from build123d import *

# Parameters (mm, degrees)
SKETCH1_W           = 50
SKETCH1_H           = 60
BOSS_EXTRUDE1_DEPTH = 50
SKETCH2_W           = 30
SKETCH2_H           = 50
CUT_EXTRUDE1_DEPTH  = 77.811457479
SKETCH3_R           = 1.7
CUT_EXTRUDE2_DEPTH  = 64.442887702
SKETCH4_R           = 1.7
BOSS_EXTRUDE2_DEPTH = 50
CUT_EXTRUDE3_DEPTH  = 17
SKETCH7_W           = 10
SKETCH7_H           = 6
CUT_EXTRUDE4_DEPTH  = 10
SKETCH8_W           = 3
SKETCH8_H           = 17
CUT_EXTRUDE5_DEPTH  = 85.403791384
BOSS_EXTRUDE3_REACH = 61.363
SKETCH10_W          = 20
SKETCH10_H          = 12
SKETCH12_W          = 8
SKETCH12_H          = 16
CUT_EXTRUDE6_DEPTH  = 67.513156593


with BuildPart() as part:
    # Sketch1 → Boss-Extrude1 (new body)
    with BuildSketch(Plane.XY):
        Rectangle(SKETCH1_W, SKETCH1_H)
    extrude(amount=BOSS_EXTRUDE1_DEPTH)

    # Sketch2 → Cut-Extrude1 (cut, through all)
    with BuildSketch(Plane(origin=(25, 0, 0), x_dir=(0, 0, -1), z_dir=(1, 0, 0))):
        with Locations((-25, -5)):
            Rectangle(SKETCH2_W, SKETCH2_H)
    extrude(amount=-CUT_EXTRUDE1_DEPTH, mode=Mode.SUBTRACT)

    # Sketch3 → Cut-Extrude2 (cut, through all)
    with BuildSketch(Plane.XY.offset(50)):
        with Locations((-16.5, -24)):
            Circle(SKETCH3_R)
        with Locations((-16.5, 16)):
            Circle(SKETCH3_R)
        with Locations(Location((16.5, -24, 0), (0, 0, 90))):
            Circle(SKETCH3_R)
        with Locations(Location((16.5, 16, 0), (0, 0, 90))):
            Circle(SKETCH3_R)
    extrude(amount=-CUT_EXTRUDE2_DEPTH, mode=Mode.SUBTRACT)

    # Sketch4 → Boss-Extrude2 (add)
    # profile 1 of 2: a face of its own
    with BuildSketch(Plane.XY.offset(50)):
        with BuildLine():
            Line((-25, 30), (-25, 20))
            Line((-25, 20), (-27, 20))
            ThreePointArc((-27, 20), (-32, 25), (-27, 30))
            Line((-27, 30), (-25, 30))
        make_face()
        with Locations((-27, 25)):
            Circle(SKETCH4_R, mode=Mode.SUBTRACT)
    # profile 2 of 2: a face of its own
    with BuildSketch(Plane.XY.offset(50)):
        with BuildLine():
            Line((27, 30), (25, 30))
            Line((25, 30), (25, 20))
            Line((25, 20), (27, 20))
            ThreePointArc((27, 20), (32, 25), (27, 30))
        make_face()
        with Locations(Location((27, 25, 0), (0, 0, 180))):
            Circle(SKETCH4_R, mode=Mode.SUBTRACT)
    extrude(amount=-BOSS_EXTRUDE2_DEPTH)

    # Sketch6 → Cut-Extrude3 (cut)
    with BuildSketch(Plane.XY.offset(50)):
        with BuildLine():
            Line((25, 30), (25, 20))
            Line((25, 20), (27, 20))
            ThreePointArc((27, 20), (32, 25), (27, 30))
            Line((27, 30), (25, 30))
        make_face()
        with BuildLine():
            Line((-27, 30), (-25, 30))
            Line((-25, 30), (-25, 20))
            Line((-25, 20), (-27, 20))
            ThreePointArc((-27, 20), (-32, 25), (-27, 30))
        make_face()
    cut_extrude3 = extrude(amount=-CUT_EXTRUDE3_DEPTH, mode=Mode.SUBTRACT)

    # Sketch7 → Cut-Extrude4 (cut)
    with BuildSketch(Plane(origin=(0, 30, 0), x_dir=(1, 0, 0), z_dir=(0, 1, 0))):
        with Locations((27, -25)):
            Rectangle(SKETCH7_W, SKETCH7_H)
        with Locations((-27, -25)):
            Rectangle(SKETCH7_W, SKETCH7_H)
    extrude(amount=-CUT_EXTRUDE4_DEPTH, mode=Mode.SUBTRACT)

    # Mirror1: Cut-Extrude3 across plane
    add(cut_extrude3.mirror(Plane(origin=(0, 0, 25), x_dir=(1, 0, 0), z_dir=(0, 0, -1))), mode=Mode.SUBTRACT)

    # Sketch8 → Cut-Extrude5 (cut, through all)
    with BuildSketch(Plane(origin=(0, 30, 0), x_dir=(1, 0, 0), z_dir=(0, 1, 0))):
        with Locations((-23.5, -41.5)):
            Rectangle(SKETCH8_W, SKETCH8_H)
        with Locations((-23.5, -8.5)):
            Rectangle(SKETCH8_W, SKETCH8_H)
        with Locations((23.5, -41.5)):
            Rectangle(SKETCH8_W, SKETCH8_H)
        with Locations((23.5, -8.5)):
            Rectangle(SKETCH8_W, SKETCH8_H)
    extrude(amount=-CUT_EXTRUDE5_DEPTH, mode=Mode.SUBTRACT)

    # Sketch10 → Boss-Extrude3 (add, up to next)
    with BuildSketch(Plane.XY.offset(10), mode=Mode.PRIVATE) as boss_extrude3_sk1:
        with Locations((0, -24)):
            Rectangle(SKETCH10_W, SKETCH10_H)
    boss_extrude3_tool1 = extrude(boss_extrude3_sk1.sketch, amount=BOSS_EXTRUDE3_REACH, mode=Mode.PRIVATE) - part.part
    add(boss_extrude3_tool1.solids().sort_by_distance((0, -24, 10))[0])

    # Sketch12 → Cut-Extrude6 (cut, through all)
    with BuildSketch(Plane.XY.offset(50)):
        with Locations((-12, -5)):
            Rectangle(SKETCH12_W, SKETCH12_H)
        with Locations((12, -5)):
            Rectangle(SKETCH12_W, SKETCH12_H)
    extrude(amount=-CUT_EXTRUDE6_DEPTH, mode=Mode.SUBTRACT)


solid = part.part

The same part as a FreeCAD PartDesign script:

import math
import FreeCAD as App
import Part
import Sketcher

V = App.Vector
Q = App.Units.Quantity


def add_polygon(sketch, points):
    """Adds a closed chain of lines whose ends are joined by coincident constraints."""
    first, n = sketch.GeometryCount, len(points)
    for a, b in zip(points, points[1:] + points[:1]):
        sketch.addGeometry(Part.LineSegment(App.Vector(*a, 0), App.Vector(*b, 0)), False)
    for i in range(n):
        sketch.addConstraint(Sketcher.Constraint("Coincident", first + i, 2, first + (i + 1) % n, 1))

doc = App.newDocument("Part")
body = doc.addObject("PartDesign::Body", "Body")

# Sketch on XY plane
sketch1 = body.newObject("Sketcher::SketchObject", "Sketch")
sketch1.AttachmentSupport = (doc.getObject("XY_Plane"), [""])
sketch1.MapMode = "FlatFace"
add_polygon(sketch1, [(-25, 30), (-25, -30), (25, -30), (25, 30)])  # lines 0-3
sketch1.addConstraint([
    Sketcher.Constraint("Vertical", 0),
    Sketcher.Constraint("Horizontal", 1),
    Sketcher.Constraint("Vertical", 2),
    Sketcher.Constraint("Horizontal", 3),
    Sketcher.Constraint("Symmetric", 0, 2, 2, 2, -1, 1),
    Sketcher.Constraint("DistanceX", 1, 1, 1, 2, Q("50 mm")),
    Sketcher.Constraint("DistanceY", 0, 2, 0, 1, Q("60 mm")),
])
pad1 = body.newObject("PartDesign::Pad", "Pad")
pad1.Profile = sketch1
pad1.Length = 50

# Sketch on YZ plane
sketch2 = body.newObject("Sketcher::SketchObject", "Sketch001")
sketch2.AttachmentSupport = (doc.getObject("YZ_Plane"), [""])
sketch2.MapMode = "FlatFace"
sketch2.AttachmentOffset = App.Placement(V(0, 0, 25), App.Rotation())
add_polygon(sketch2, [(20, 40), (-30, 40), (-30, 10), (20, 10)])  # lines 0-3
sketch2.addConstraint([
    Sketcher.Constraint("Horizontal", 0),
    Sketcher.Constraint("Vertical", 1),
    Sketcher.Constraint("Horizontal", 2),
    Sketcher.Constraint("Vertical", 3),
    Sketcher.Constraint("DistanceX", 0, 2, 0, 1, Q("50 mm")),
    Sketcher.Constraint("DistanceY", 1, 2, 1, 1, Q("30 mm")),
    Sketcher.Constraint("DistanceX", 0, 2, -1, 1, Q("30 mm")),
    Sketcher.Constraint("DistanceY", -1, 1, 0, 2, Q("40 mm")),
])
pocket1 = body.newObject("PartDesign::Pocket", "Pocket")
pocket1.Profile = sketch2
pocket1.Type = "ThroughAll"

# Sketch on XY plane
sketch3 = body.newObject("Sketcher::SketchObject", "Sketch002")
sketch3.AttachmentSupport = (doc.getObject("XY_Plane"), [""])
sketch3.MapMode = "FlatFace"
sketch3.AttachmentOffset = App.Placement(V(0, 0, 50), App.Rotation())
sketch3.addGeometry([
    Part.Circle(V(-16.5, -24, 0), V(0, 0, 1), 1.7),
    Part.Circle(V(-16.5, 16, 0), V(0, 0, 1), 1.7),
    Part.Circle(V(16.5, -24, 0), V(0, 0, 1), 1.7),
    Part.Circle(V(16.5, 16, 0), V(0, 0, 1), 1.7),
], False)
sketch3.addConstraint([
    Sketcher.Constraint("Equal", 0, 1),
    Sketcher.Constraint("Equal", 1, 2),
    Sketcher.Constraint("Equal", 2, 3),
    Sketcher.Constraint("Symmetric", 0, 3, 2, 3, -2),
    Sketcher.Constraint("Symmetric", 1, 3, 3, 3, -2),
    Sketcher.Constraint("Vertical", 0, 3, 1, 3),
    Sketcher.Constraint("Diameter", 0, Q("3.4 mm")),
    Sketcher.Constraint("DistanceY", 0, 3, -1, 1, Q("24 mm")),
    Sketcher.Constraint("DistanceY", -1, 1, 1, 3, Q("16 mm")),
    Sketcher.Constraint("DistanceX", 0, 3, 2, 3, Q("33 mm")),
])
pocket2 = body.newObject("PartDesign::Pocket", "Pocket001")
pocket2.Profile = sketch3
pocket2.Type = "ThroughAll"

# Sketch on XY plane
sketch4 = body.newObject("Sketcher::SketchObject", "Sketch003")
sketch4.AttachmentSupport = (doc.getObject("XY_Plane"), [""])
sketch4.MapMode = "FlatFace"
sketch4.AttachmentOffset = App.Placement(V(0, 0, 50), App.Rotation())
sketch4.addGeometry([
    Part.LineSegment(V(-25, 20, 0), V(-25, 30, 0)),  # 0
    Part.LineSegment(V(-25, 30, 0), V(-27, 30, 0)),  # 1
    Part.ArcOfCircle(Part.Circle(V(-27, 25, 0), V(0, 0, 1), 5), math.radians(90), math.radians(270)),  # 2
    Part.LineSegment(V(-27, 20, 0), V(-25, 20, 0)),  # 3
    Part.Circle(V(-27, 25, 0), V(0, 0, 1), 1.7),  # 4
    Part.LineSegment(V(27, 30, 0), V(25, 30, 0)),  # 5
    Part.LineSegment(V(25, 30, 0), V(25, 20, 0)),  # 6
    Part.LineSegment(V(25, 20, 0), V(27, 20, 0)),  # 7
    Part.ArcOfCircle(Part.Circle(V(27, 25, 0), V(0, 0, 1), 5), math.radians(-90), math.radians(90)),  # 8
    Part.Circle(V(27, 25, 0), V(0, 0, 1), 1.7),  # 9
], False)
sketch4.addConstraint([
    Sketcher.Constraint("Coincident", 0, 2, 1, 1),
    Sketcher.Constraint("Tangent", 1, 2, 2, 1),
    Sketcher.Constraint("Tangent", 2, 2, 3, 1),
    Sketcher.Constraint("Coincident", 3, 2, 0, 1),
    Sketcher.Constraint("Coincident", 5, 2, 6, 1),
    Sketcher.Constraint("Coincident", 6, 2, 7, 1),
    Sketcher.Constraint("Tangent", 7, 2, 8, 1),
    Sketcher.Constraint("Tangent", 8, 2, 5, 1),
    Sketcher.Constraint("Vertical", 0),
    Sketcher.Constraint("Horizontal", 1),
    Sketcher.Constraint("Horizontal", 3),
    Sketcher.Constraint("Horizontal", 5),
    Sketcher.Constraint("Vertical", 6),
    Sketcher.Constraint("Horizontal", 7),
    Sketcher.Constraint("Coincident", 4, 3, 2, 3),
    Sketcher.Constraint("Coincident", 9, 3, 8, 3),
    Sketcher.Constraint("Equal", 2, 8),
    Sketcher.Constraint("Equal", 4, 9),
    Sketcher.Constraint("Symmetric", 2, 3, 8, 3, -2),
    Sketcher.Constraint("Equal", 3, 5),
    Sketcher.Constraint("Radius", 2, Q("5 mm")),
    Sketcher.Constraint("Diameter", 4, Q("3.4 mm")),
    Sketcher.Constraint("DistanceX", 1, 2, 1, 1, Q("2 mm")),
    Sketcher.Constraint("DistanceX", 2, 3, -1, 1, Q("27 mm")),
    Sketcher.Constraint("DistanceY", -1, 1, 2, 3, Q("25 mm")),
])
pad2 = body.newObject("PartDesign::Pad", "Pad001")
pad2.Profile = sketch4
pad2.Length = 50
pad2.Reversed = True

# Sketch on XY plane
sketch5 = body.newObject("Sketcher::SketchObject", "Sketch004")
sketch5.AttachmentSupport = (doc.getObject("XY_Plane"), [""])
sketch5.MapMode = "FlatFace"
sketch5.AttachmentOffset = App.Placement(V(0, 0, 50), App.Rotation())
sketch5.addGeometry([
    Part.LineSegment(V(25, 30, 0), V(25, 20, 0)),  # 0
    Part.LineSegment(V(25, 20, 0), V(27, 20, 0)),  # 1
    Part.ArcOfCircle(Part.Circle(V(27, 25, 0), V(0, 0, 1), 5), math.radians(-90), math.radians(90)),  # 2
    Part.LineSegment(V(27, 30, 0), V(25, 30, 0)),  # 3
    Part.LineSegment(V(-25, 30, 0), V(-27, 30, 0)),  # 4
    Part.ArcOfCircle(Part.Circle(V(-27, 25, 0), V(0, 0, 1), 5), math.radians(90), math.radians(270)),  # 5
    Part.LineSegment(V(-27, 20, 0), V(-25, 20, 0)),  # 6
    Part.LineSegment(V(-25, 20, 0), V(-25, 30, 0)),  # 7
], False)
sketch5.addConstraint([
    Sketcher.Constraint("Coincident", 0, 2, 1, 1),
    Sketcher.Constraint("Tangent", 1, 2, 2, 1),
    Sketcher.Constraint("Tangent", 2, 2, 3, 1),
    Sketcher.Constraint("Coincident", 3, 2, 0, 1),
    Sketcher.Constraint("Tangent", 4, 2, 5, 1),
    Sketcher.Constraint("Tangent", 5, 2, 6, 1),
    Sketcher.Constraint("Coincident", 6, 2, 7, 1),
    Sketcher.Constraint("Coincident", 7, 2, 4, 1),
    Sketcher.Constraint("Vertical", 0),
    Sketcher.Constraint("Horizontal", 1),
    Sketcher.Constraint("Horizontal", 3),
    Sketcher.Constraint("Horizontal", 4),
    Sketcher.Constraint("Horizontal", 6),
    Sketcher.Constraint("Vertical", 7),
    Sketcher.Constraint("Equal", 2, 5),
    Sketcher.Constraint("Symmetric", 2, 3, 5, 3, -2),
    Sketcher.Constraint("Equal", 3, 4),
    Sketcher.Constraint("Radius", 2, Q("5 mm")),
    Sketcher.Constraint("DistanceX", 1, 1, 1, 2, Q("2 mm")),
    Sketcher.Constraint("DistanceX", -1, 1, 2, 3, Q("27 mm")),
    Sketcher.Constraint("DistanceY", -1, 1, 2, 3, Q("25 mm")),
])
pocket3 = body.newObject("PartDesign::Pocket", "Pocket002")
pocket3.Profile = sketch5
pocket3.Length = 17

# Sketch on XZ plane
sketch6 = body.newObject("Sketcher::SketchObject", "Sketch005")
sketch6.AttachmentSupport = (doc.getObject("XZ_Plane"), [""])
sketch6.MapMode = "FlatFace"
sketch6.AttachmentOffset = App.Placement(V(0, 0, -30), App.Rotation())
add_polygon(sketch6, [(22, 22), (22, 28), (32, 28), (32, 22)])  # lines 0-3
add_polygon(sketch6, [(-32, 22), (-32, 28), (-22, 28), (-22, 22)])  # lines 4-7
sketch6.addConstraint([
    Sketcher.Constraint("Vertical", 0),
    Sketcher.Constraint("Horizontal", 1),
    Sketcher.Constraint("Vertical", 2),
    Sketcher.Constraint("Horizontal", 3),
    Sketcher.Constraint("Vertical", 4),
    Sketcher.Constraint("Horizontal", 5),
    Sketcher.Constraint("Vertical", 6),
    Sketcher.Constraint("Horizontal", 7),
    Sketcher.Constraint("Symmetric", 1, 2, 4, 2, -2),
    Sketcher.Constraint("Symmetric", 3, 2, 6, 2, -2),
    Sketcher.Constraint("DistanceX", 1, 1, 1, 2, Q("10 mm")),
    Sketcher.Constraint("DistanceY", 0, 1, 0, 2, Q("6 mm")),
    Sketcher.Constraint("DistanceX", -1, 1, 0, 2, Q("22 mm")),
    Sketcher.Constraint("DistanceY", -1, 1, 0, 2, Q("28 mm")),
])
pocket4 = body.newObject("PartDesign::Pocket", "Pocket003")
pocket4.Profile = sketch6
pocket4.Length = 10
pocket4.Reversed = True
doc.recompute()

datumplane = body.newObject("PartDesign::Plane", "DatumPlane")
datumplane.AttachmentSupport = (doc.getObject("XY_Plane"), [""])
datumplane.MapMode = "FlatFace"
datumplane.AttachmentOffset = App.Placement(V(0, 0, 25), App.Rotation())
mirrored = body.newObject("PartDesign::Mirrored", "Mirrored")
mirrored.Originals = [pocket3]
mirrored.MirrorPlane = (datumplane, [""])
body.Tip = mirrored

# Sketch on XZ plane
sketch7 = body.newObject("Sketcher::SketchObject", "Sketch006")
sketch7.AttachmentSupport = (doc.getObject("XZ_Plane"), [""])
sketch7.MapMode = "FlatFace"
sketch7.AttachmentOffset = App.Placement(V(0, 0, -30), App.Rotation())
add_polygon(sketch7, [(-25, 33), (-25, 50), (-22, 50), (-22, 33)])  # lines 0-3
add_polygon(sketch7, [(-25, 0), (-25, 17), (-22, 17), (-22, 0)])  # lines 4-7
add_polygon(sketch7, [(22, 33), (22, 50), (25, 50), (25, 33)])  # lines 8-11
add_polygon(sketch7, [(22, 0), (22, 17), (25, 17), (25, 0)])  # lines 12-15
sketch7.addConstraint([
    Sketcher.Constraint("Vertical", 0),
    Sketcher.Constraint("Horizontal", 1),
    Sketcher.Constraint("Vertical", 2),
    Sketcher.Constraint("Horizontal", 3),
    Sketcher.Constraint("Vertical", 4),
    Sketcher.Constraint("Horizontal", 5),
    Sketcher.Constraint("Vertical", 6),
    Sketcher.Constraint("Horizontal", 7),
    Sketcher.Constraint("Vertical", 8),
    Sketcher.Constraint("Horizontal", 9),
    Sketcher.Constraint("Vertical", 10),
    Sketcher.Constraint("Horizontal", 11),
    Sketcher.Constraint("Vertical", 12),
    Sketcher.Constraint("Horizontal", 13),
    Sketcher.Constraint("Vertical", 14),
    Sketcher.Constraint("Horizontal", 15),
    Sketcher.Constraint("Symmetric", 7, 2, 14, 2, -1, 1),
    Sketcher.Constraint("Symmetric", 1, 2, 8, 2, -2),
    Sketcher.Constraint("Symmetric", 3, 2, 10, 2, -2),
    Sketcher.Constraint("Symmetric", 5, 2, 12, 2, -2),
    Sketcher.Constraint("PointOnObject", 6, 2, -1),
    Sketcher.Constraint("Vertical", 3, 2, 4, 2),
    Sketcher.Constraint("Vertical", 2, 2, 5, 2),
    Sketcher.Constraint("Equal", 2, 4),
    Sketcher.Constraint("DistanceX", 1, 1, 1, 2, Q("3 mm")),
    Sketcher.Constraint("DistanceY", 0, 1, 0, 2, Q("17 mm")),
    Sketcher.Constraint("DistanceX", 0, 2, -1, 1, Q("25 mm")),
    Sketcher.Constraint("DistanceY", -1, 1, 0, 2, Q("50 mm")),
])
pocket5 = body.newObject("PartDesign::Pocket", "Pocket004")
pocket5.Profile = sketch7
pocket5.Type = "ThroughAll"
pocket5.Reversed = True

# Sketch on XY plane
sketch8 = body.newObject("Sketcher::SketchObject", "Sketch007")
sketch8.AttachmentSupport = (doc.getObject("XY_Plane"), [""])
sketch8.MapMode = "FlatFace"
sketch8.AttachmentOffset = App.Placement(V(0, 0, 10), App.Rotation())
add_polygon(sketch8, [(-10, -18), (-10, -30), (10, -30), (10, -18)])  # lines 0-3
sketch8.addConstraint([
    Sketcher.Constraint("Vertical", 0),
    Sketcher.Constraint("Horizontal", 1),
    Sketcher.Constraint("Vertical", 2),
    Sketcher.Constraint("Horizontal", 3),
    Sketcher.Constraint("DistanceX", 1, 1, 1, 2, Q("20 mm")),
    Sketcher.Constraint("DistanceY", 0, 2, 0, 1, Q("12 mm")),
    Sketcher.Constraint("DistanceX", 0, 2, -1, 1, Q("10 mm")),
    Sketcher.Constraint("DistanceY", 0, 2, -1, 1, Q("30 mm")),
])
pad3 = body.newObject("PartDesign::Pad", "Pad002")
pad3.Profile = sketch8
pad3.Type = "UpToFirst"

# Sketch on XY plane
sketch9 = body.newObject("Sketcher::SketchObject", "Sketch008")
sketch9.AttachmentSupport = (doc.getObject("XY_Plane"), [""])
sketch9.MapMode = "FlatFace"
sketch9.AttachmentOffset = App.Placement(V(0, 0, 50), App.Rotation())
add_polygon(sketch9, [(-16, 3), (-16, -13), (-8, -13), (-8, 3)])  # lines 0-3
add_polygon(sketch9, [(8, 3), (8, -13), (16, -13), (16, 3)])  # lines 4-7
sketch9.addConstraint([
    Sketcher.Constraint("Vertical", 0),
    Sketcher.Constraint("Horizontal", 1),
    Sketcher.Constraint("Vertical", 2),
    Sketcher.Constraint("Horizontal", 3),
    Sketcher.Constraint("Vertical", 4),
    Sketcher.Constraint("Horizontal", 5),
    Sketcher.Constraint("Vertical", 6),
    Sketcher.Constraint("Horizontal", 7),
    Sketcher.Constraint("Symmetric", 1, 2, 4, 2, -2),
    Sketcher.Constraint("Symmetric", 3, 2, 6, 2, -2),
    Sketcher.Constraint("DistanceX", 1, 1, 1, 2, Q("8 mm")),
    Sketcher.Constraint("DistanceY", 0, 2, 0, 1, Q("16 mm")),
    Sketcher.Constraint("DistanceX", 0, 2, -1, 1, Q("16 mm")),
    Sketcher.Constraint("DistanceY", 0, 2, -1, 1, Q("13 mm")),
])
pocket6 = body.newObject("PartDesign::Pocket", "Pocket005")
pocket6.Profile = sketch9
pocket6.Type = "ThroughAll"

doc.recompute()
